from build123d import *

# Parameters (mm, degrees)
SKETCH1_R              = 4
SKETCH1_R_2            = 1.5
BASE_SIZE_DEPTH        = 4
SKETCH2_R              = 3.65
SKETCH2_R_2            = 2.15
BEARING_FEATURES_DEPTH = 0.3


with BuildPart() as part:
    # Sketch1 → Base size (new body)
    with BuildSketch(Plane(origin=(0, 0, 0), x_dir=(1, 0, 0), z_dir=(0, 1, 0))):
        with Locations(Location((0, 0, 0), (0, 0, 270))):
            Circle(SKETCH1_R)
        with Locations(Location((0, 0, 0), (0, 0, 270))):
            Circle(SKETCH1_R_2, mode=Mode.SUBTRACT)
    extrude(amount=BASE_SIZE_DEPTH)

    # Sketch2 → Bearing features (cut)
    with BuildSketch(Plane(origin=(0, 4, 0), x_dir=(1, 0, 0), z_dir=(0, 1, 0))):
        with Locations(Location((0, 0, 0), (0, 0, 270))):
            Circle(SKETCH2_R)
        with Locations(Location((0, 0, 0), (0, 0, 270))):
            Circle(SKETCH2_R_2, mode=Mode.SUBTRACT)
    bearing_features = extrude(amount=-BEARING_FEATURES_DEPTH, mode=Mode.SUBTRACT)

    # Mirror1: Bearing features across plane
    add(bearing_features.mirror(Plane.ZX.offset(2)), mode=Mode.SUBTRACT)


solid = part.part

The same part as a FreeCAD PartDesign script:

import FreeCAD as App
import Part
import Sketcher

V = App.Vector
Q = App.Units.Quantity

doc = App.newDocument("Part")
body = doc.addObject("PartDesign::Body", "Body")

sketch1 = doc.addObject("Sketcher::SketchObject", "Sketch")
body.addObject(sketch1)
sketch1.AttachmentSupport = (doc.XZ_Plane, [""])
sketch1.MapMode = "FlatFace"
sketch1.addGeometry([
    Part.Circle(V(0, 0, 0), V(0, 0, 1), 4),
    Part.Circle(V(0, 0, 0), V(0, 0, 1), 1.5),
], False)
sketch1.addConstraint([
    Sketcher.Constraint("Coincident", 0, 3, -1, 1),
    Sketcher.Constraint("Coincident", 1, 3, -1, 1),
    Sketcher.Constraint("Diameter", 0, Q("8 mm")),
    Sketcher.Constraint("Diameter", 1, Q("3 mm")),
])
pad1 = doc.addObject("PartDesign::Pad", "Pad")
body.addObject(pad1)
pad1.Profile = sketch1
pad1.Length = 4
pad1.Reversed = True

sketch2 = doc.addObject("Sketcher::SketchObject", "Sketch001")
body.addObject(sketch2)
sketch2.AttachmentSupport = (doc.XZ_Plane, [""])
sketch2.MapMode = "FlatFace"
sketch2.AttachmentOffset = App.Placement(V(0, 0, -4), App.Rotation())
sketch2.addGeometry([
    Part.Circle(V(0, 0, 0), V(0, 0, 1), 3.6),
    Part.Circle(V(0, 0, 0), V(0, 0, 1), 2.1),
], False)
sketch2.addConstraint([
    Sketcher.Constraint("Coincident", 0, 3, -1, 1),
    Sketcher.Constraint("Coincident", 1, 3, -1, 1),
    Sketcher.Constraint("Diameter", 0, Q("7.3 mm")),
    Sketcher.Constraint("Diameter", 1, Q("4.3 mm")),
])
pocket1 = doc.addObject("PartDesign::Pocket", "Pocket")
body.addObject(pocket1)
pocket1.Profile = sketch2
pocket1.Length = 0.3
pocket1.Reversed = True
doc.recompute()

datumplane = doc.addObject("PartDesign::Plane", "DatumPlane")
body.addObject(datumplane)
datumplane.AttachmentSupport = (doc.XZ_Plane, [""])
datumplane.MapMode = "FlatFace"
datumplane.AttachmentOffset = App.Placement(V(0, 0, -2), App.Rotation())
mirrored = doc.addObject("PartDesign::Mirrored", "Mirrored")
body.addObject(mirrored)
mirrored.Originals = [pocket1]
mirrored.MirrorPlane = (datumplane, [""])
body.Tip = mirrored

doc.recompute()
